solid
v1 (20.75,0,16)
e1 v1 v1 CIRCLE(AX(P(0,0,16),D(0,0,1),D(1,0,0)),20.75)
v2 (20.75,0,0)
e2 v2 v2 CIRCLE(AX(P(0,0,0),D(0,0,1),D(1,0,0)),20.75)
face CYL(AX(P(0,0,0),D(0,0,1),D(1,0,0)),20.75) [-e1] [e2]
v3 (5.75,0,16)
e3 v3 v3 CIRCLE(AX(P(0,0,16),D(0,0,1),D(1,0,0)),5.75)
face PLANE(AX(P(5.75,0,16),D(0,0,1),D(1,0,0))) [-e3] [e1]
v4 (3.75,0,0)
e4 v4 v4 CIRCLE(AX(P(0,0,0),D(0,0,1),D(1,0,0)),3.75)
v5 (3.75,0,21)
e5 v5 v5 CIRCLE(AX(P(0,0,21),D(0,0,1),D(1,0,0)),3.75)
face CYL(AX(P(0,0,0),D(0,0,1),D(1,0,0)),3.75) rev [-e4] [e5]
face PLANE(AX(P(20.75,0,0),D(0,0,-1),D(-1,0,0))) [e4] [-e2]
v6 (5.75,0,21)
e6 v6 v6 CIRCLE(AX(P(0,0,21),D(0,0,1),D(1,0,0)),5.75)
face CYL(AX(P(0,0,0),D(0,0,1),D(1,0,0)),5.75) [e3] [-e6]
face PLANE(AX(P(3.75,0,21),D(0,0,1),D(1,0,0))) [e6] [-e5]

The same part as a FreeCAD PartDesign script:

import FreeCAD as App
import Part
import Sketcher
from FreeCAD import Vector


def add_polygon(sketch, points):
    """Adds a closed chain of lines whose ends are joined by coincident constraints."""
    first, n = sketch.GeometryCount, len(points)
    for a, b in zip(points, points[1:] + points[:1]):
        sketch.addGeometry(Part.LineSegment(App.Vector(*a, 0), App.Vector(*b, 0)), False)
    for i in range(n):
        sketch.addConstraint(Sketcher.Constraint("Coincident", first + i, 2, first + (i + 1) % n, 1))

doc = App.newDocument("Part")
body = doc.addObject("PartDesign::Body", "Body")

sketch1 = doc.addObject("Sketcher::SketchObject", "Sketch")
body.addObject(sketch1)
sketch1.AttachmentSupport = (doc.XZ_Plane, [""])
sketch1.MapMode = "FlatFace"
add_polygon(sketch1, [(3.8, 21), (5.8, 21), (5.8, 16), (20.8, 16), (20.8, 0), (3.8, 0)])
sketch1.addConstraint(Sketcher.Constraint("Horizontal", 0))
sketch1.addConstraint(Sketcher.Constraint("Vertical", 1))
sketch1.addConstraint(Sketcher.Constraint("Horizontal", 2))
sketch1.addConstraint(Sketcher.Constraint("Vertical", 3))
sketch1.addConstraint(Sketcher.Constraint("Horizontal", 4))
sketch1.addConstraint(Sketcher.Constraint("Vertical", 5))
sketch1.addConstraint(Sketcher.Constraint("PointOnObject", 3, 2, -1))
sketch1.addConstraint(Sketcher.Constraint("DistanceX", 0, 1, 0, 2, 2.0))
sketch1.addConstraint(Sketcher.Constraint("DistanceX", 2, 1, 2, 2, 15.0))
sketch1.addConstraint(Sketcher.Constraint("DistanceY", 1, 2, 1, 1, 5.0))
sketch1.addConstraint(Sketcher.Constraint("DistanceY", 3, 2, 3, 1, 16.0))
sketch1.addConstraint(Sketcher.Constraint("DistanceX", -1, 1, 0, 2, 5.75))
revolution = doc.addObject("PartDesign::Revolution", "Revolution")
body.addObject(revolution)
revolution.Profile = sketch1
revolution.ReferenceAxis = (sketch1, ["V_Axis"])
revolution.Angle = 360

doc.recompute()
